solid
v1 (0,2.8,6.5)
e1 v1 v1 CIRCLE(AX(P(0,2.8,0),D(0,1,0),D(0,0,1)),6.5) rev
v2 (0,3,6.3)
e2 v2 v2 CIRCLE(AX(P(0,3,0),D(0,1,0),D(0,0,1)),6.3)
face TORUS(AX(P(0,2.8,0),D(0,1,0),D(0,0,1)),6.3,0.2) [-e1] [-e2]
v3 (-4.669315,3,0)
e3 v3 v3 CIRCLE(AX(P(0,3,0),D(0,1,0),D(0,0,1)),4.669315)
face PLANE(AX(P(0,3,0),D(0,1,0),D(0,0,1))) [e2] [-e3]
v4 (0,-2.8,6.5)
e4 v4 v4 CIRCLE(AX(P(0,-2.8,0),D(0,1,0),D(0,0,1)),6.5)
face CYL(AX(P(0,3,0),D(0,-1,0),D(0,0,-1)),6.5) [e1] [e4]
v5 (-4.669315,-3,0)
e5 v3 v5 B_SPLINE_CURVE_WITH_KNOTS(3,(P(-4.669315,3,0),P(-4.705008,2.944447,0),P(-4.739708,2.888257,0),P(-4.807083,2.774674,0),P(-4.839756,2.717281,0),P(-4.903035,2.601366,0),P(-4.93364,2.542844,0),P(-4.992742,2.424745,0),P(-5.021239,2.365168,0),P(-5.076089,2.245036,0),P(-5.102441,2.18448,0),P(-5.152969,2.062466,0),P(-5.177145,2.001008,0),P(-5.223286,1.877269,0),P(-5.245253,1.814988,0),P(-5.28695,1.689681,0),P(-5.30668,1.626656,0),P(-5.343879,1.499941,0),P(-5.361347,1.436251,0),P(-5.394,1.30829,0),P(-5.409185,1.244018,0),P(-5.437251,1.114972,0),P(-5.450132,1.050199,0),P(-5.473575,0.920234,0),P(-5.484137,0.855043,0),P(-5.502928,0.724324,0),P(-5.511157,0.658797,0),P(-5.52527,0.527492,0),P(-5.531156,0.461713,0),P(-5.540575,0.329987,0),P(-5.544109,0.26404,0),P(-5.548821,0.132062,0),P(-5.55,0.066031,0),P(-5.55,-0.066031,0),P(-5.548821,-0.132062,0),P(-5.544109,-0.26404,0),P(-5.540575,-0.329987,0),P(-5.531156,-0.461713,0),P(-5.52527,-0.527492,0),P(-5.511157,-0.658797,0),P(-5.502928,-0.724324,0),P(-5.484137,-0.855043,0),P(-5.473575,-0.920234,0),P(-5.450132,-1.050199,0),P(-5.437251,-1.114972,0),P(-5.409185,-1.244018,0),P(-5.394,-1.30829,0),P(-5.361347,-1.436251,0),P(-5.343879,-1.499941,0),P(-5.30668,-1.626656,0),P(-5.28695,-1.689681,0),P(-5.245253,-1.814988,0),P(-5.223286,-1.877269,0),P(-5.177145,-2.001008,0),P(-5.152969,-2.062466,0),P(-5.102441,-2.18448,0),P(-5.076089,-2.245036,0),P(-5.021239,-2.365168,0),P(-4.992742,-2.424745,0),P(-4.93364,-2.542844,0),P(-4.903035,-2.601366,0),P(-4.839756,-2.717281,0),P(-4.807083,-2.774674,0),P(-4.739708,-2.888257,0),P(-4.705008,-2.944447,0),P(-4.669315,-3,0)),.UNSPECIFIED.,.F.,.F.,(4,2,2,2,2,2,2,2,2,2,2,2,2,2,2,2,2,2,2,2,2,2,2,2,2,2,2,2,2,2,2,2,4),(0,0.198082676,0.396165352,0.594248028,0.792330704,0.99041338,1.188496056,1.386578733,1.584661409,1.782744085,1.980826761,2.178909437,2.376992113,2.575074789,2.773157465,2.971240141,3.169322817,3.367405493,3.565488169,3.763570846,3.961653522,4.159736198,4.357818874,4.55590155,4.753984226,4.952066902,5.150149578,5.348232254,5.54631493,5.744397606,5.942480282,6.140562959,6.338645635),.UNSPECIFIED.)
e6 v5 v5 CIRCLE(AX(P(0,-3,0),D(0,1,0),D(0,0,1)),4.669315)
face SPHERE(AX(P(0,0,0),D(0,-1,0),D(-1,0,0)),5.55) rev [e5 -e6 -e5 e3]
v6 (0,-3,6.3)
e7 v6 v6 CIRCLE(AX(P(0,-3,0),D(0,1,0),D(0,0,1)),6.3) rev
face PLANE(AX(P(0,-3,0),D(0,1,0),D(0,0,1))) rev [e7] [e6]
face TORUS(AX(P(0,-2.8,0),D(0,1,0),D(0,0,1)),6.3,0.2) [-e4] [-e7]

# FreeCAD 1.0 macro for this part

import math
import FreeCAD as App
import Part
import Sketcher
from FreeCAD import Vector
Q = App.Units.Quantity


def edges_at(feature, points):
    """Names of the edges that pass closest to the given points."""
    edges = feature.Shape.Edges
    near = lambda p: min(range(len(edges)), key=lambda i: edges[i].distToShape(Part.Vertex(*p))[0])
    return sorted({f"Edge{near(p) + 1}" for p in points})

doc = App.newDocument("Part")
body = doc.addObject("PartDesign::Body", "Body")

# Sketch on XZ plane
sketch1 = doc.addObject("Sketcher::SketchObject", "Sketch")
body.addObject(sketch1)
sketch1.AttachmentSupport = (doc.XZ_Plane, [""])
sketch1.MapMode = "FlatFace"
sketch1.addGeometry(Part.Circle(Vector(0, 0, 0), Vector(0, 0, 1), 6), False)
sketch1.addConstraint(Sketcher.Constraint("Coincident", 0, 3, -1, 1))
sketch1.addConstraint(Sketcher.Constraint("Diameter", 0, Q("13 mm")))
pad1 = doc.addObject("PartDesign::Pad", "Pad")
body.addObject(pad1)
pad1.Profile = sketch1
pad1.Length = 6
pad1.Midplane = True

# Sketch on XY plane
sketch2 = doc.addObject("Sketcher::SketchObject", "Sketch001")
body.addObject(sketch2)
sketch2.AttachmentSupport = (doc.XY_Plane, [""])
sketch2.MapMode = "FlatFace"
sketch2.addGeometry(Part.LineSegment(Vector(0, 6, 0), Vector(0, -6, 0)), False)
sketch2.addGeometry(Part.ArcOfCircle(Part.Circle(Vector(0, 0, 0), Vector(0, 0, 1), 6), math.radians(-90), math.radians(90)), False)
sketch2.addConstraint(Sketcher.Constraint("Coincident", 0, 1, 1, 2))
sketch2.addConstraint(Sketcher.Constraint("Coincident", 1, 1, 0, 2))
sketch2.addConstraint(Sketcher.Constraint("Vertical", 0))
sketch2.addConstraint(Sketcher.Constraint("Coincident", 1, 3, -1, 1))
sketch2.addConstraint(Sketcher.Constraint("PointOnObject", 0, 1, -2))
sketch2.addConstraint(Sketcher.Constraint("Radius", 1, Q("5.55 mm")))
groove = doc.addObject("PartDesign::Groove", "Groove")
body.addObject(groove)
groove.Profile = sketch2
groove.ReferenceAxis = (sketch2, ["V_Axis"])
groove.Angle = 360
doc.recompute()

fillet = doc.addObject("PartDesign::Fillet", "Fillet")
body.addObject(fillet)
fillet.Base = (groove, edges_at(groove, [(0, -3, -6.5), (0, 3, -6.5)]))
fillet.Radius = 0.2

doc.recompute()
